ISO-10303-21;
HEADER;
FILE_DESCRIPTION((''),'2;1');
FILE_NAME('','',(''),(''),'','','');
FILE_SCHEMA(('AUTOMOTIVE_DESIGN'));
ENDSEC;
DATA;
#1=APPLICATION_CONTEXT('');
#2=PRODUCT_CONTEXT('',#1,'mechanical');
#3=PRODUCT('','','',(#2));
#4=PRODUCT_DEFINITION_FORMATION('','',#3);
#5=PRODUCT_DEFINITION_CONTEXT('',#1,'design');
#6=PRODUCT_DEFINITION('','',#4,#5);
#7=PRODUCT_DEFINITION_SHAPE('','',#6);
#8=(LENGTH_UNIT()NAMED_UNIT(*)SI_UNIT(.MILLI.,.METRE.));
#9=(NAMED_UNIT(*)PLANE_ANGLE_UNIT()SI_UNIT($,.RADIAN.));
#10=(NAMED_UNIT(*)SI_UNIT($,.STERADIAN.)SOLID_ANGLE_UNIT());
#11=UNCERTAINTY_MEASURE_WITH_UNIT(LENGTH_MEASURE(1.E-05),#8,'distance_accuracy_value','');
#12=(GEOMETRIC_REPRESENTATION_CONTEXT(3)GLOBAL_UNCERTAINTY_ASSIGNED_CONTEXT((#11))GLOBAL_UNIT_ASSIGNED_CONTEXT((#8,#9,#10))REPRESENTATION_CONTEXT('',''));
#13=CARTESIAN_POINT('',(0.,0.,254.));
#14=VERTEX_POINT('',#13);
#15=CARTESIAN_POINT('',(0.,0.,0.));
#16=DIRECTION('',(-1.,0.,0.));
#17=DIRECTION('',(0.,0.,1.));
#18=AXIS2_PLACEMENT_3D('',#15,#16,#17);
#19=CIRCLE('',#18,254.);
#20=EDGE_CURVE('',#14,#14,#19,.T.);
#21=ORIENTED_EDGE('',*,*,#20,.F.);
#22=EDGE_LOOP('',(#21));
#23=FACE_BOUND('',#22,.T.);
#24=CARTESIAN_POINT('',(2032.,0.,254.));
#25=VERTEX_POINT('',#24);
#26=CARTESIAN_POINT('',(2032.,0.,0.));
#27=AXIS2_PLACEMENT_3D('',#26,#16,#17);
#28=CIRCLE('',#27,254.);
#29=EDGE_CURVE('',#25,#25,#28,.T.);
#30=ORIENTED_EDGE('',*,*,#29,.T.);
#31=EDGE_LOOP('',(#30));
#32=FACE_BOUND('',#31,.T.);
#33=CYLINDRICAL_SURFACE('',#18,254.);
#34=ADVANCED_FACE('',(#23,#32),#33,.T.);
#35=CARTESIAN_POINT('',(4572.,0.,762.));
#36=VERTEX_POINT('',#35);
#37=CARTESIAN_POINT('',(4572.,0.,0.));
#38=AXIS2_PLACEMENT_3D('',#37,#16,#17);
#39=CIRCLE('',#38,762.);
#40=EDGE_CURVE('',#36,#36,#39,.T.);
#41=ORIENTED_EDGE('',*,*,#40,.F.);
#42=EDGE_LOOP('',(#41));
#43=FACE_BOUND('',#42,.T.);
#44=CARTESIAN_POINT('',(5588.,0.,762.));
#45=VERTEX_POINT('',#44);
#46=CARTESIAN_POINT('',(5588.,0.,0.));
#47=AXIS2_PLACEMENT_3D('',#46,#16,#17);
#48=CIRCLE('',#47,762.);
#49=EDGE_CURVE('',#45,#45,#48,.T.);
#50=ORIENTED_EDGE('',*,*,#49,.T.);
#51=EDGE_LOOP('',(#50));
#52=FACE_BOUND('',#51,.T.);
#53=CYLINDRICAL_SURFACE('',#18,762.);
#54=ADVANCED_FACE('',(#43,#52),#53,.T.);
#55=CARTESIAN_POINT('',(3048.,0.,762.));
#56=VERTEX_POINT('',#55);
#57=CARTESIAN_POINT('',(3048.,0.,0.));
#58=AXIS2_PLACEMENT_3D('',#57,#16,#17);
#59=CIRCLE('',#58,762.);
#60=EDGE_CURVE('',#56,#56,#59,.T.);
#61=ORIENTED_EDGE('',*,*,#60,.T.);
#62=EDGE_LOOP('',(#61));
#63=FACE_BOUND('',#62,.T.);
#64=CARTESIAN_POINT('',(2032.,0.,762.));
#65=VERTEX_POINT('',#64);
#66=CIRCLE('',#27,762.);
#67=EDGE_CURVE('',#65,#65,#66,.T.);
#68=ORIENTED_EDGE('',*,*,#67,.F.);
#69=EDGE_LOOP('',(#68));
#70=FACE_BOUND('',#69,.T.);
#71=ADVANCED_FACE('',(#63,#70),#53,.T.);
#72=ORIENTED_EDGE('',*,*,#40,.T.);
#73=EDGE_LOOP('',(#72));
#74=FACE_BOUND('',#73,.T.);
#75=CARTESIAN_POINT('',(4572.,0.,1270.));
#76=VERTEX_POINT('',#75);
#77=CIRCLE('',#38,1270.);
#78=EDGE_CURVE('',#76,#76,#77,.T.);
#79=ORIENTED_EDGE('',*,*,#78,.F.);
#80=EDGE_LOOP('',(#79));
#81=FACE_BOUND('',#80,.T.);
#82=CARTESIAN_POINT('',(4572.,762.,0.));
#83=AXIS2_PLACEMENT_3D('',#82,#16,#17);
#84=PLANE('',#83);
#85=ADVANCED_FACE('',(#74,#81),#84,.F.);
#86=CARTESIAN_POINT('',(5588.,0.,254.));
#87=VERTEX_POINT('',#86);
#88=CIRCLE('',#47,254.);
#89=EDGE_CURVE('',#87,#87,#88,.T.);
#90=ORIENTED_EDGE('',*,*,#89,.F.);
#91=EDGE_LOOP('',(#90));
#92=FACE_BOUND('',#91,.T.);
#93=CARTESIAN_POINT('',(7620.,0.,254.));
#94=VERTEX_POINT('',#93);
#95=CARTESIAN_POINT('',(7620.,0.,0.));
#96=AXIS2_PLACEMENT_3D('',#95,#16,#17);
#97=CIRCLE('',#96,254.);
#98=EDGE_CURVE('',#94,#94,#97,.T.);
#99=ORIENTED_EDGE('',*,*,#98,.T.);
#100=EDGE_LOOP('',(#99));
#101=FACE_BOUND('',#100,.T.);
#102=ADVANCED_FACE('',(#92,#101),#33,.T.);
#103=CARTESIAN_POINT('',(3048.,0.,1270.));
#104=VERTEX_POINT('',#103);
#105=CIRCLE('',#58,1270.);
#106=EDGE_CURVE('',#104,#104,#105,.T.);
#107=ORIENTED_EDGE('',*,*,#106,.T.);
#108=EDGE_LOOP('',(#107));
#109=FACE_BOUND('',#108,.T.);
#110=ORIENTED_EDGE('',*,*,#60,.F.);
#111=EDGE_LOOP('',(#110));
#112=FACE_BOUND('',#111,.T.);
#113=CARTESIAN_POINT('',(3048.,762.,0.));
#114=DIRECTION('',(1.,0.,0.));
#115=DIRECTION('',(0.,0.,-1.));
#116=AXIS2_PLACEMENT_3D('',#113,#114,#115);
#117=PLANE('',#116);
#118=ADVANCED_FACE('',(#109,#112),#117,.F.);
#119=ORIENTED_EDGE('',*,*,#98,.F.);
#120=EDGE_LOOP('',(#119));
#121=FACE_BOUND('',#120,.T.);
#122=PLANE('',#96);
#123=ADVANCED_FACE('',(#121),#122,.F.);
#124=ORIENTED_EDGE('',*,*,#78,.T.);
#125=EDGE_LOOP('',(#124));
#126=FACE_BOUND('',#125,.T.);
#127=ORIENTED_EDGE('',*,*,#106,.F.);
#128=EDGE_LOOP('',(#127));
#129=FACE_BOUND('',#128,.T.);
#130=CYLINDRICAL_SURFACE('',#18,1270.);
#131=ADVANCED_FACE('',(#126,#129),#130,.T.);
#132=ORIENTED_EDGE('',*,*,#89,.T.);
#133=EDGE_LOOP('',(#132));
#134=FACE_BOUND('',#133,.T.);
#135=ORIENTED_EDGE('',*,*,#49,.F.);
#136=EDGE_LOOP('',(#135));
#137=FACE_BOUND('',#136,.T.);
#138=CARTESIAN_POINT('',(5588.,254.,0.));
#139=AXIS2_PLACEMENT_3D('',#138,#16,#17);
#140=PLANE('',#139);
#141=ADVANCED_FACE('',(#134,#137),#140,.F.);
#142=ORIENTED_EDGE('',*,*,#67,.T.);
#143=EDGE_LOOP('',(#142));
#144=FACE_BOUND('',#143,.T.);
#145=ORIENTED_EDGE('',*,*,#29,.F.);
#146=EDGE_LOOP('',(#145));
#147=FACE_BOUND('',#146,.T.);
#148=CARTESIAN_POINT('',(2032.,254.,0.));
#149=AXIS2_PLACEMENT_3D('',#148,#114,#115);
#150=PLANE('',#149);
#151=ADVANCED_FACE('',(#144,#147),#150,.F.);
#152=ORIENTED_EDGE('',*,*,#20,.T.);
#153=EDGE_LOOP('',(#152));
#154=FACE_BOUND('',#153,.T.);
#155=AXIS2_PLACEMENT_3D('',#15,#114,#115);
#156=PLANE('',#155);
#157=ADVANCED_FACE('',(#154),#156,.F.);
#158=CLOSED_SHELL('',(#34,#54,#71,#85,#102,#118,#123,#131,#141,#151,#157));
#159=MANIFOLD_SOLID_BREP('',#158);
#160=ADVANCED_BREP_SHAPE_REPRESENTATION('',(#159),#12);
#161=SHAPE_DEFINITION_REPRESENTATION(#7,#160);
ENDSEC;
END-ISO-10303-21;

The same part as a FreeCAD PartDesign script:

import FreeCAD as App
import Part
import Sketcher

V = App.Vector
Q = App.Units.Quantity

doc = App.newDocument("Part")
params = doc.addObject("Spreadsheet::Sheet", "Params")
for row, (alias, value) in enumerate([
    ("sketch1_width", "300 in"),
    ("sketch1_width2", "80 in"),
    ("sketch1_width3", "40 in"),
    ("sketch1_height", "10 in"),
    ("sketch1_height2", "20 in"),
    ("revolution_angle", "360 deg"),
], start=1):
    params.set(f"A{row}", alias)
    params.set(f"B{row}", "=" + value)
    params.setAlias(f"B{row}", alias)

body = doc.addObject("PartDesign::Body", "Body")

sketch1 = body.newObject("Sketcher::SketchObject", "Sketch")
sketch1.AttachmentSupport = (doc.getObject("XY_Plane"), [""])
sketch1.MapMode = "FlatFace"
sketch1.addGeometry([
    Part.LineSegment(V(0, 254, 0), V(0, 0, 0)),
    Part.LineSegment(V(0, 0, 0), V(7620, 0, 0)),
    Part.LineSegment(V(7620, 0, 0), V(7620, 254, 0)),
    Part.LineSegment(V(7620, 254, 0), V(5588, 254, 0)),
    Part.LineSegment(V(5588, 254, 0), V(5588, 762, 0)),
    Part.LineSegment(V(5588, 762, 0), V(4572, 762, 0)),
    Part.LineSegment(V(4572, 762, 0), V(4572, 1270, 0)),
    Part.LineSegment(V(4572, 1270, 0), V(3048, 1270, 0)),
    Part.LineSegment(V(3048, 1270, 0), V(3048, 762, 0)),
    Part.LineSegment(V(3048, 762, 0), V(2032, 762, 0)),
    Part.LineSegment(V(2032, 762, 0), V(2032, 254, 0)),
    Part.LineSegment(V(2032, 254, 0), V(0, 254, 0)),
], False)
sketch1.addConstraint([
    Sketcher.Constraint("Coincident", 0, 2, 1, 1),
    Sketcher.Constraint("Coincident", 1, 2, 2, 1),
    Sketcher.Constraint("Coincident", 2, 2, 3, 1),
    Sketcher.Constraint("Coincident", 3, 2, 4, 1),
    Sketcher.Constraint("Coincident", 4, 2, 5, 1),
    Sketcher.Constraint("Coincident", 5, 2, 6, 1),
    Sketcher.Constraint("Coincident", 6, 2, 7, 1),
    Sketcher.Constraint("Coincident", 7, 2, 8, 1),
    Sketcher.Constraint("Coincident", 8, 2, 9, 1),
    Sketcher.Constraint("Coincident", 9, 2, 10, 1),
    Sketcher.Constraint("Coincident", 10, 2, 11, 1),
    Sketcher.Constraint("Coincident", 11, 2, 0, 1),
    Sketcher.Constraint("Vertical", 0),
    Sketcher.Constraint("Horizontal", 1),
    Sketcher.Constraint("Vertical", 2),
    Sketcher.Constraint("Horizontal", 3),
    Sketcher.Constraint("Vertical", 4),
    Sketcher.Constraint("Horizontal", 5),
    Sketcher.Constraint("Vertical", 6),
    Sketcher.Constraint("Horizontal", 7),
    Sketcher.Constraint("Vertical", 8),
    Sketcher.Constraint("Horizontal", 9),
    Sketcher.Constraint("Vertical", 10),
    Sketcher.Constraint("Horizontal", 11),
    Sketcher.Constraint("Coincident", 0, 2, -1, 1),
    Sketcher.Constraint("Horizontal", 5, 2, 8, 2),
    Sketcher.Constraint("Horizontal", 3, 2, 10, 2),
    Sketcher.Constraint("Equal", 5, 9),
    Sketcher.Constraint("Equal", 3, 11),
    Sketcher.Constraint("Equal", 4, 6),
    Sketcher.Constraint("DistanceX", 1, 1, 1, 2, Q("300 in")),
    Sketcher.Constraint("DistanceX", 3, 2, 3, 1, Q("80 in")),
    Sketcher.Constraint("DistanceX", 5, 2, 5, 1, Q("40 in")),
    Sketcher.Constraint("DistanceY", 0, 2, 0, 1, Q("10 in")),
    Sketcher.Constraint("DistanceY", 4, 1, 4, 2, Q("20 in")),
])
sketch1.setExpression("Constraints[30]", "Params.sketch1_width")
sketch1.setExpression("Constraints[31]", "Params.sketch1_width2")
sketch1.setExpression("Constraints[32]", "Params.sketch1_width3")
sketch1.setExpression("Constraints[33]", "Params.sketch1_height")
sketch1.setExpression("Constraints[34]", "Params.sketch1_height2")
revolution = body.newObject("PartDesign::Revolution", "Revolution")
revolution.Profile = sketch1
revolution.ReferenceAxis = (sketch1, ["H_Axis"])
revolution.setExpression("Angle", "Params.revolution_angle")

doc.recompute()
